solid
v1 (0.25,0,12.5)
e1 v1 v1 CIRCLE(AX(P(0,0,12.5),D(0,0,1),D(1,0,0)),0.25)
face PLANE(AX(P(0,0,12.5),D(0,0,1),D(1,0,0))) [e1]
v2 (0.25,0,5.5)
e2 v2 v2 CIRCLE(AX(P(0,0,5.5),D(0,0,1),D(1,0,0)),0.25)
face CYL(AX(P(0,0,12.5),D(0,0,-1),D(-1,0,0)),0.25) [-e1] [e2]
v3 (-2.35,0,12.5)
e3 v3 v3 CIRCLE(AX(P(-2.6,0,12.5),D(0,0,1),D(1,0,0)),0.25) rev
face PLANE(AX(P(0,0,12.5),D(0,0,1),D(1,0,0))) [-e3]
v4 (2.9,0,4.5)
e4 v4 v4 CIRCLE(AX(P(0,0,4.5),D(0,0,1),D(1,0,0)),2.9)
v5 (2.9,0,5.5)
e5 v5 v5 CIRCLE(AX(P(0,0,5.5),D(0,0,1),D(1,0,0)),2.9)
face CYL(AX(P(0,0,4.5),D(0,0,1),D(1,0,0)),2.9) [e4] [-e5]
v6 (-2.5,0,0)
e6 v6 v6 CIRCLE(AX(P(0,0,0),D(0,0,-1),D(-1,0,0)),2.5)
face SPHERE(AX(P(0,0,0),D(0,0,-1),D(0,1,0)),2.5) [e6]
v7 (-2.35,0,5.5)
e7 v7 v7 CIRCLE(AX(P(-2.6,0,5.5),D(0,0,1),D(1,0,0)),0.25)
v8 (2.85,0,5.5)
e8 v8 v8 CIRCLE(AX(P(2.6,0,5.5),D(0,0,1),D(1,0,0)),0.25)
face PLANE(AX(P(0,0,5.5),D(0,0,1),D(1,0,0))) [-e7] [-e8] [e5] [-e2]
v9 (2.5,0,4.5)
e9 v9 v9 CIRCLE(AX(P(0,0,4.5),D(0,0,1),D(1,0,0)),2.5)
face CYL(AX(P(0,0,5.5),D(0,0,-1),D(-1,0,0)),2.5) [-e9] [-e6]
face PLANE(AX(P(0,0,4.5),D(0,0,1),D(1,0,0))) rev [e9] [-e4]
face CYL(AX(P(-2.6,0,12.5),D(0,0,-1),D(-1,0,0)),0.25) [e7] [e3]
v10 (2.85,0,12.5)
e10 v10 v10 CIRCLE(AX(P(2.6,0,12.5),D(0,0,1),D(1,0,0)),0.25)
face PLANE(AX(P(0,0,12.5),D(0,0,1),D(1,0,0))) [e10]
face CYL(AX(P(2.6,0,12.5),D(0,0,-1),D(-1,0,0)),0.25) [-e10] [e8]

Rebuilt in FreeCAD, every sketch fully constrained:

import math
import FreeCAD as App
import Part
import Sketcher

V = App.Vector
Q = App.Units.Quantity

doc = App.newDocument("Part")
body = doc.addObject("PartDesign::Body", "Body")

sketch1 = body.newObject("Sketcher::SketchObject", "Sketch")
sketch1.AttachmentSupport = (doc.getObject("XY_Plane"), [""])
sketch1.MapMode = "FlatFace"
sketch1.addGeometry(Part.Circle(V(0, 0, 0), V(0, 0, 1), 2.5), False)
sketch1.addConstraint([
    Sketcher.Constraint("Coincident", 0, 3, -1, 1),
    Sketcher.Constraint("Diameter", 0, Q("5 mm")),
])
pad1 = body.newObject("PartDesign::Pad", "Pad")
pad1.Profile = sketch1
pad1.Length = 5.5

sketch2 = body.newObject("Sketcher::SketchObject", "Sketch001")
sketch2.AttachmentSupport = (doc.getObject("XY_Plane"), [""])
sketch2.MapMode = "FlatFace"
sketch2.AttachmentOffset = App.Placement(V(0, 0, 5.5), App.Rotation())
sketch2.addGeometry(Part.Circle(V(0, 0, 0), V(0, 0, 1), 2.9), False)
sketch2.addConstraint([
    Sketcher.Constraint("Coincident", 0, 3, -1, 1),
    Sketcher.Constraint("Diameter", 0, Q("5.8 mm")),
])
pad2 = body.newObject("PartDesign::Pad", "Pad001")
pad2.Profile = sketch2
pad2.Length = 1
pad2.Reversed = True

sketch3 = body.newObject("Sketcher::SketchObject", "Sketch002")
sketch3.AttachmentSupport = (doc.getObject("YZ_Plane"), [""])
sketch3.MapMode = "FlatFace"
sketch3.addGeometry([
    Part.LineSegment(V(2.5, 0, 0), V(0, 0, 0)),
    Part.LineSegment(V(0, 0, 0), V(0, -2.5, 0)),
    Part.ArcOfCircle(Part.Circle(V(0, 0, 0), V(0, 0, 1), 2.5), math.radians(-90), math.radians(0)),
], False)
sketch3.addConstraint([
    Sketcher.Constraint("Coincident", 0, 2, 1, 1),
    Sketcher.Constraint("Coincident", 1, 2, 2, 1),
    Sketcher.Constraint("Coincident", 2, 2, 0, 1),
    Sketcher.Constraint("Horizontal", 0),
    Sketcher.Constraint("Vertical", 1),
    Sketcher.Constraint("Coincident", 2, 3, -1, 1),
    Sketcher.Constraint("Coincident", 0, 2, -1, 1),
    Sketcher.Constraint("Radius", 2, Q("2.5 mm")),
])
revolution = body.newObject("PartDesign::Revolution", "Revolution")
revolution.Profile = sketch3
revolution.ReferenceAxis = (sketch3, ["V_Axis"])
revolution.Angle = 360

sketch4 = body.newObject("Sketcher::SketchObject", "Sketch003")
sketch4.AttachmentSupport = (doc.getObject("XY_Plane"), [""])
sketch4.MapMode = "FlatFace"
sketch4.AttachmentOffset = App.Placement(V(0, 0, 5.5), App.Rotation())
sketch4.addGeometry([
    Part.Circle(V(2.6, 0, 0), V(0, 0, 1), 0.25),
    Part.ArcOfCircle(Part.Circle(V(0, 0, 0), V(0, 0, 1), 0.25), math.radians(0), math.radians(90)),
    Part.ArcOfCircle(Part.Circle(V(0, 0, 0), V(0, 0, 1), 0.25), math.radians(90), math.radians(180)),
    Part.ArcOfCircle(Part.Circle(V(0, 0, 0), V(0, 0, 1), 0.25), math.radians(-180), math.radians(-90)),
    Part.ArcOfCircle(Part.Circle(V(0, 0, 0), V(0, 0, 1), 0.25), math.radians(-90), math.radians(0)),
    Part.Circle(V(-2.6, 0, 0), V(0, 0, 1), 0.25),
], False)
sketch4.addConstraint([
    Sketcher.Constraint("Tangent", 1, 2, 2, 1),
    Sketcher.Constraint("Tangent", 2, 2, 3, 1),
    Sketcher.Constraint("Tangent", 3, 2, 4, 1),
    Sketcher.Constraint("Tangent", 4, 2, 1, 1),
    Sketcher.Constraint("Coincident", 1, 3, -1, 1),
    Sketcher.Constraint("Equal", 0, 1),
    Sketcher.Constraint("Equal", 1, 2),
    Sketcher.Constraint("Equal", 4, 5),
    Sketcher.Constraint("Symmetric", 0, 3, 5, 3, -1, 1),
    Sketcher.Constraint("PointOnObject", 0, 3, -1),
    Sketcher.Constraint("PointOnObject", 1, 2, -2),
    Sketcher.Constraint("PointOnObject", 2, 2, -1),
    Sketcher.Constraint("PointOnObject", 3, 2, -2),
    Sketcher.Constraint("PointOnObject", 4, 2, -1),
    Sketcher.Constraint("Diameter", 0, Q("0.5 mm")),
    Sketcher.Constraint("DistanceX", -1, 1, 0, 3, Q("2.6 mm")),
])
pad3 = body.newObject("PartDesign::Pad", "Pad002")
pad3.Profile = sketch4
pad3.Length = 7

doc.recompute()
